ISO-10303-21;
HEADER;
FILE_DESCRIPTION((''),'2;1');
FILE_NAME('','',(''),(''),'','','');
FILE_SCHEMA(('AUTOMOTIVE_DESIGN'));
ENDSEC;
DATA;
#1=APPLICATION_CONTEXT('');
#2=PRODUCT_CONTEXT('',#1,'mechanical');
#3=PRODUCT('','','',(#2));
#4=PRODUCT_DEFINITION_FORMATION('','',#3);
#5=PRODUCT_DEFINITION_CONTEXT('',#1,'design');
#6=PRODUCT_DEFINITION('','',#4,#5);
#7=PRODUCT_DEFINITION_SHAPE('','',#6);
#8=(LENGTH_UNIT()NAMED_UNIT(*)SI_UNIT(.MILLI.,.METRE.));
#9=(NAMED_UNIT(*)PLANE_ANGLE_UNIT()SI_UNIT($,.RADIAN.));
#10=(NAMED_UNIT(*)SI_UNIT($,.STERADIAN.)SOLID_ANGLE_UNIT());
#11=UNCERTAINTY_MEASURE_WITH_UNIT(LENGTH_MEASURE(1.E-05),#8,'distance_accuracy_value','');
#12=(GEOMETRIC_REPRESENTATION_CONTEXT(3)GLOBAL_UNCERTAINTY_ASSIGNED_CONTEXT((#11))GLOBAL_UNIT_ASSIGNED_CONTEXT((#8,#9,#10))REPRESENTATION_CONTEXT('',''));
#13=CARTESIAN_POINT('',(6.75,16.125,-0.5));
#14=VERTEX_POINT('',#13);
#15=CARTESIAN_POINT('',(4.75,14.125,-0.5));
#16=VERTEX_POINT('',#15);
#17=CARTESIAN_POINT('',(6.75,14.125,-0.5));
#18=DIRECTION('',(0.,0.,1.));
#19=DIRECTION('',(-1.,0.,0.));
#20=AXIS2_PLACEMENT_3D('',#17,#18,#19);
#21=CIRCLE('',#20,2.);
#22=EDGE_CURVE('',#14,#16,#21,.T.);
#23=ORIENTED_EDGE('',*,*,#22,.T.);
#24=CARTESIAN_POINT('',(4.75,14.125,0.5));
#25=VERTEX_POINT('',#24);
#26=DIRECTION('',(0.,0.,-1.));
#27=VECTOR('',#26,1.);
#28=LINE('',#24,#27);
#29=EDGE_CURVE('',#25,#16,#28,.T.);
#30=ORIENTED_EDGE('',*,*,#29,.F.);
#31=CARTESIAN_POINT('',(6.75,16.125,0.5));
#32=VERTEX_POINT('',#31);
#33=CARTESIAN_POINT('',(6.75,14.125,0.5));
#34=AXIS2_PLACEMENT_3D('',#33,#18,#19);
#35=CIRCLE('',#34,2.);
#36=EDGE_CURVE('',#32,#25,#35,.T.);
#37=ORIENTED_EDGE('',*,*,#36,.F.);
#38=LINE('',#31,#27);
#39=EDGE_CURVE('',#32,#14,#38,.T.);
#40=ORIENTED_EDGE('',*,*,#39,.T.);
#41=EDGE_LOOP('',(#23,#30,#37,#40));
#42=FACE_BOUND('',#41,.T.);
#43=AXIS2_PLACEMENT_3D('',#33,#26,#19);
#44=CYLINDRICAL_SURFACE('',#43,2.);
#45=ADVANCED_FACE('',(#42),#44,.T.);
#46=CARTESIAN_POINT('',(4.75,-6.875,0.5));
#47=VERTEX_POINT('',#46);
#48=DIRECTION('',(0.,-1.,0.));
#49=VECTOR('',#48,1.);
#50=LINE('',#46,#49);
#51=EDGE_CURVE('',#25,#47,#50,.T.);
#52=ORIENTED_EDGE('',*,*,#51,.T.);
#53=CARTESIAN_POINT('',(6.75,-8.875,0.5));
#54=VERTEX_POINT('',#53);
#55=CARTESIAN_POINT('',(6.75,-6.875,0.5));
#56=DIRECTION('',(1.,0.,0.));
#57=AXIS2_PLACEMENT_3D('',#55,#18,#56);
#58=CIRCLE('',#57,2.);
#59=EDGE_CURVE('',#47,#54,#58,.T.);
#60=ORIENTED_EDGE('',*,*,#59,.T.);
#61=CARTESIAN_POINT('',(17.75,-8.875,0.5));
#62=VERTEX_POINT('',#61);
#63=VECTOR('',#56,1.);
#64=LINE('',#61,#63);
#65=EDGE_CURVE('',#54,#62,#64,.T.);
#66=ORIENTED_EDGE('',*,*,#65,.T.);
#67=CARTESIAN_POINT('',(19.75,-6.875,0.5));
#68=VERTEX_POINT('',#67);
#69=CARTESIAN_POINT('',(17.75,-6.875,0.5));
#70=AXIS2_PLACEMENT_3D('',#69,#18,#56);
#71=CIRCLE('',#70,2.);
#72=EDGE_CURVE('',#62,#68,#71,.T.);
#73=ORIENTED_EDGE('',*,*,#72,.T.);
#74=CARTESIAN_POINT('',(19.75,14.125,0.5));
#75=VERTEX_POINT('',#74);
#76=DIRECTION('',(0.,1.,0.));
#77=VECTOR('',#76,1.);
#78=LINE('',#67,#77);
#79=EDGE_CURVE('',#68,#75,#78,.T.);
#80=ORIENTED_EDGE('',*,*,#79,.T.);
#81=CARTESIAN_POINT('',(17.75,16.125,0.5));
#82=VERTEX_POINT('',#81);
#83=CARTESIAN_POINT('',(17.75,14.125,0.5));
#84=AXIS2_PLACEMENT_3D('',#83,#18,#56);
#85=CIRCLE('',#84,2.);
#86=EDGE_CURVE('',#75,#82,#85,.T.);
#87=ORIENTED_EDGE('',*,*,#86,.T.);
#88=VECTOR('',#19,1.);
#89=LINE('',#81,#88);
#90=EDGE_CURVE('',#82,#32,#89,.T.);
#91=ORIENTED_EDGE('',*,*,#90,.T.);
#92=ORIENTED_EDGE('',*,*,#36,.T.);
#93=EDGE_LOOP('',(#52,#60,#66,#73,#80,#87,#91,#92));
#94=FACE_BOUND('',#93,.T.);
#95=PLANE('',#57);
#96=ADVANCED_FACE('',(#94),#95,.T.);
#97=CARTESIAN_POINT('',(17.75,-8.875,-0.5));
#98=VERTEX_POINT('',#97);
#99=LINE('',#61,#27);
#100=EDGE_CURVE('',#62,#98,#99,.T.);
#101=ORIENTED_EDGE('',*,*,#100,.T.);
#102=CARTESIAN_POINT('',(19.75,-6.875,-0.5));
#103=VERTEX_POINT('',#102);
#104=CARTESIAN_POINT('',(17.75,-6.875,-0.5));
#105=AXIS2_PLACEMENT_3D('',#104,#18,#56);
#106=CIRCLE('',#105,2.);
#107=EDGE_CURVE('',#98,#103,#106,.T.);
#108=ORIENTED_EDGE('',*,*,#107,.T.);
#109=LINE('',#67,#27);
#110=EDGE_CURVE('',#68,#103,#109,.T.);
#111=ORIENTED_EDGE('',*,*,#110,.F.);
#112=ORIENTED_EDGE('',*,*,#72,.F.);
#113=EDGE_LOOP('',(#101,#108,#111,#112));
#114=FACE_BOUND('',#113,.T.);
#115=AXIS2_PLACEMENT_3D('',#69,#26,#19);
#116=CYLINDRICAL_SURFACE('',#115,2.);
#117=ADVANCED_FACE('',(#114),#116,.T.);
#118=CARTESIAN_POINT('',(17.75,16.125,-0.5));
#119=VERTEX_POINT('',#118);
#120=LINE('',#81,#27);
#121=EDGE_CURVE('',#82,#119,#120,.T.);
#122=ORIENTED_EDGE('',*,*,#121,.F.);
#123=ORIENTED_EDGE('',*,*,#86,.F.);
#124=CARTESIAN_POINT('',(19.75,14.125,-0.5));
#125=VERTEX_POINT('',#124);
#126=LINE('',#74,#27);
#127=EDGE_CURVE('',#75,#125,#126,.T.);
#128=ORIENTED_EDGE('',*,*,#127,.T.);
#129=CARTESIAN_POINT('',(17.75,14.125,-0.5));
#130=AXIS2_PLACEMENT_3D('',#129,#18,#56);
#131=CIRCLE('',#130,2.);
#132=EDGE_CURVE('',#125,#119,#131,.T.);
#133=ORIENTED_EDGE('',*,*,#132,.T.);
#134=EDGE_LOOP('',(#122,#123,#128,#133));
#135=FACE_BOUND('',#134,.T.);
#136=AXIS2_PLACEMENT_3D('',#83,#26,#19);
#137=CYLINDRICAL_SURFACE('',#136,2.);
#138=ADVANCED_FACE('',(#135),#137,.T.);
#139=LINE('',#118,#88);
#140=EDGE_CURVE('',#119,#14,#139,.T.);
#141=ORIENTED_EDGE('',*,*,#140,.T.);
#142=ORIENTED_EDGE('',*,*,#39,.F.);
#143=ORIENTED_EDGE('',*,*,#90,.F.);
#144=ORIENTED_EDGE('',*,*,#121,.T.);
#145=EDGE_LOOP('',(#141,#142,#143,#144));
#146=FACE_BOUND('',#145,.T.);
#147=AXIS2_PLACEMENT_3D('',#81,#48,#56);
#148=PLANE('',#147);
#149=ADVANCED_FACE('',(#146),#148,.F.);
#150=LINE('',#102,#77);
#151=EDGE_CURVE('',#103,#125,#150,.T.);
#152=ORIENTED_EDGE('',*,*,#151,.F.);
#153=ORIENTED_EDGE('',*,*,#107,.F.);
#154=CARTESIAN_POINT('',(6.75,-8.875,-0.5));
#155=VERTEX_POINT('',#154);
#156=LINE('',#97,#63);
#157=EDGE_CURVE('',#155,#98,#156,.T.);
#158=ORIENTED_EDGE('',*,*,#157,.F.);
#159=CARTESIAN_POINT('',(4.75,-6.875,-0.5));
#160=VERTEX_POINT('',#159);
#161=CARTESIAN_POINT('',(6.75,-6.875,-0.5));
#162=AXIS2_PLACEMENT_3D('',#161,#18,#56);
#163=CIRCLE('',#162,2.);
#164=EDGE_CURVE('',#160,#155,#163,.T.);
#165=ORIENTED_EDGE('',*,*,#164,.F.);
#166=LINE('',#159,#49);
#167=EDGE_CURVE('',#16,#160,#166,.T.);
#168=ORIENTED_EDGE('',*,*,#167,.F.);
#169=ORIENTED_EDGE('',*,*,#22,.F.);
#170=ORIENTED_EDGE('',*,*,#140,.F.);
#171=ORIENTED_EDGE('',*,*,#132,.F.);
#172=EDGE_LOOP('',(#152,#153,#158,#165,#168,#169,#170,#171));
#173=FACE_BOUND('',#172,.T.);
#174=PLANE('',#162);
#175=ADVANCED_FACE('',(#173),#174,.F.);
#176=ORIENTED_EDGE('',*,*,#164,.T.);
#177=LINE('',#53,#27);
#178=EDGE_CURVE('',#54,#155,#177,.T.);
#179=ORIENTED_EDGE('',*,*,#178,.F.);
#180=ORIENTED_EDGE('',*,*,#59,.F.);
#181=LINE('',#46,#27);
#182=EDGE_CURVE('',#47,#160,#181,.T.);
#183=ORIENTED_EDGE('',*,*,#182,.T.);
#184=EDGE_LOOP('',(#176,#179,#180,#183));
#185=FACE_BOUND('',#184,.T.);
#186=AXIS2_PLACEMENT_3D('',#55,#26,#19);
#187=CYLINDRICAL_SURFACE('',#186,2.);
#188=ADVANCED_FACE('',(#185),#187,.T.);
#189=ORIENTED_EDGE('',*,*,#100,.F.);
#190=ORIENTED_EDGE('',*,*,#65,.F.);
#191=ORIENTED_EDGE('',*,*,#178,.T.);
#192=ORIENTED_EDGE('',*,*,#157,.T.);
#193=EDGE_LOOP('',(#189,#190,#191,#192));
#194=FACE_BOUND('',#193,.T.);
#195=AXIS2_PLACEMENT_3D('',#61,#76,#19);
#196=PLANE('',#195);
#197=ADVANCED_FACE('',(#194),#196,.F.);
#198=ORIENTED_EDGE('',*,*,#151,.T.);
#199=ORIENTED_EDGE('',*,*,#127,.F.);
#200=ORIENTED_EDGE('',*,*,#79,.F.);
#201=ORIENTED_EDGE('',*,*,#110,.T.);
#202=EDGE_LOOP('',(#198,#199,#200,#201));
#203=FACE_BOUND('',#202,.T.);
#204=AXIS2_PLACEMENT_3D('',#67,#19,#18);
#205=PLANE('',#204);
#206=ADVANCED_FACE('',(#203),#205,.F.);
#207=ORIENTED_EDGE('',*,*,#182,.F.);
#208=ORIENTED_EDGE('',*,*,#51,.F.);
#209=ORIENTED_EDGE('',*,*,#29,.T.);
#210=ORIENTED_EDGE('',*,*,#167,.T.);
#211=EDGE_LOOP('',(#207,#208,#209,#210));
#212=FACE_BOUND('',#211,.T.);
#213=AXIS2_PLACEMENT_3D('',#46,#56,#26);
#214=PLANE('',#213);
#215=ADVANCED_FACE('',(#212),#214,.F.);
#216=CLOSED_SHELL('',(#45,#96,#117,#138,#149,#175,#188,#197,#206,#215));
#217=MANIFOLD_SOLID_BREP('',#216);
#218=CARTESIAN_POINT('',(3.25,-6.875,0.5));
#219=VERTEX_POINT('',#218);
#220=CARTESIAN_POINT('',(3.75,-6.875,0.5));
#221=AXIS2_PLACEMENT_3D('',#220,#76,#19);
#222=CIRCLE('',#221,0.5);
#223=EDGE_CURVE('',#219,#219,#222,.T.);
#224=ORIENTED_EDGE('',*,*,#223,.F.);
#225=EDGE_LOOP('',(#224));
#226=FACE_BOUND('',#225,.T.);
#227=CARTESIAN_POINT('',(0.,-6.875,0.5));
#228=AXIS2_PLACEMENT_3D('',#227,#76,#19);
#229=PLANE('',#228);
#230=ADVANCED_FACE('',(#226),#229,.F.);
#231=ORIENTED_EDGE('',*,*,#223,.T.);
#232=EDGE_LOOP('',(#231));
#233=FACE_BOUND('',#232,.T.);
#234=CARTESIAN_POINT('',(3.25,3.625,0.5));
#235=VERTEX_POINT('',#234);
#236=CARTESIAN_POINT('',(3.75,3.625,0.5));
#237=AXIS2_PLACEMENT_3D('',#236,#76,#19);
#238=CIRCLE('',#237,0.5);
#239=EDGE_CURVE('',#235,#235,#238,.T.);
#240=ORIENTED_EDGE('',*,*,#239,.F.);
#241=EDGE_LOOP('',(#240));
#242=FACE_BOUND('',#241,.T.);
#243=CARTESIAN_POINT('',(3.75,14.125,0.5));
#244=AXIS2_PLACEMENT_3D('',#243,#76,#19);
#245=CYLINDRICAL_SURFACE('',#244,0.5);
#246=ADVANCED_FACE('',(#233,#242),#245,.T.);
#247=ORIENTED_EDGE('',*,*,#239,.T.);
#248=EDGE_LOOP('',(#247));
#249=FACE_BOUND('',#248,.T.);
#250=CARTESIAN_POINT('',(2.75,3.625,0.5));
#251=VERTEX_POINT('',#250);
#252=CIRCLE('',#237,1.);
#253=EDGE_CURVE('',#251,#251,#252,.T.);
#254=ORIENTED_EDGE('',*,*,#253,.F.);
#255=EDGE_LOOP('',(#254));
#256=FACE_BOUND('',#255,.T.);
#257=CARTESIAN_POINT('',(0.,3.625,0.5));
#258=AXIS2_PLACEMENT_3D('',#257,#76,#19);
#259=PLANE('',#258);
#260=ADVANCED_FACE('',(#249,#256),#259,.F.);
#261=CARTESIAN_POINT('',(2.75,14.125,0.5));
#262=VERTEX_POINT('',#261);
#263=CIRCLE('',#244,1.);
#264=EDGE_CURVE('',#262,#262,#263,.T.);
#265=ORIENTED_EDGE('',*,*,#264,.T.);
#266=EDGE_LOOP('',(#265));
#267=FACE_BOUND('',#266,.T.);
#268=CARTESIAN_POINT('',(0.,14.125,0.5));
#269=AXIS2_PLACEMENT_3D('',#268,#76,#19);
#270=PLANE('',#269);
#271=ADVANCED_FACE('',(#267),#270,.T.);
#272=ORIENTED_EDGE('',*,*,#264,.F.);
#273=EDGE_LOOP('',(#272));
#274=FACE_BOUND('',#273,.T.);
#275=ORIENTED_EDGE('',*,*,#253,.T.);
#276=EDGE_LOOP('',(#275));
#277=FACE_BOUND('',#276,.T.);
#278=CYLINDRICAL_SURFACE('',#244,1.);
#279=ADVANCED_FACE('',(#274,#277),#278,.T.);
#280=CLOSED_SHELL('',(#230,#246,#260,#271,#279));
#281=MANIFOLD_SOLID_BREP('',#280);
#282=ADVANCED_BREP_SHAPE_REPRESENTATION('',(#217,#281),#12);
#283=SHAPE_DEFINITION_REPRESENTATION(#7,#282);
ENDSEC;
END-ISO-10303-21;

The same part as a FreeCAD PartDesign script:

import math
import FreeCAD as App
import Part
import Sketcher


def add_polygon(sketch, points):
    """Adds a closed chain of lines whose ends are joined by coincident constraints."""
    first, n = sketch.GeometryCount, len(points)
    for a, b in zip(points, points[1:] + points[:1]):
        sketch.addGeometry(Part.LineSegment(App.Vector(*a, 0), App.Vector(*b, 0)), False)
    for i in range(n):
        sketch.addConstraint(Sketcher.Constraint("Coincident", first + i, 2, first + (i + 1) % n, 1))

doc = App.newDocument("Part")
body = doc.addObject("PartDesign::Body", "Body")

# Sketch on XY plane
sketch1 = doc.addObject("Sketcher::SketchObject", "Sketch")
body.addObject(sketch1)
sketch1.AttachmentSupport = (doc.XY_Plane, [""])
sketch1.MapMode = "FlatFace"
sketch1.addGeometry(Part.LineSegment(App.Vector(6.8, -8.9, 0), App.Vector(17.8, -8.9, 0)), False)
sketch1.addGeometry(Part.ArcOfCircle(Part.Circle(App.Vector(17.7, -6.9, 0), App.Vector(0, 0, 1), 2), math.radians(-90), math.radians(0)), False)
sketch1.addGeometry(Part.LineSegment(App.Vector(19.8, -6.9, 0), App.Vector(19.8, 14.1, 0)), False)
sketch1.addGeometry(Part.ArcOfCircle(Part.Circle(App.Vector(17.7, 14.1, 0), App.Vector(0, 0, 1), 2), math.radians(0), math.radians(90)), False)
sketch1.addGeometry(Part.LineSegment(App.Vector(17.8, 16.1, 0), App.Vector(6.8, 16.1, 0)), False)
sketch1.addGeometry(Part.ArcOfCircle(Part.Circle(App.Vector(6.8, 14.1, 0), App.Vector(0, 0, 1), 2), math.radians(90), math.radians(180)), False)
sketch1.addGeometry(Part.LineSegment(App.Vector(4.8, 14.1, 0), App.Vector(4.8, -6.9, 0)), False)
sketch1.addGeometry(Part.ArcOfCircle(Part.Circle(App.Vector(6.8, -6.9, 0), App.Vector(0, 0, 1), 2), math.radians(-180), math.radians(-90)), False)
sketch1.addConstraint(Sketcher.Constraint("Tangent", 0, 2, 1, 1))
sketch1.addConstraint(Sketcher.Constraint("Tangent", 1, 2, 2, 1))
sketch1.addConstraint(Sketcher.Constraint("Tangent", 2, 2, 3, 1))
sketch1.addConstraint(Sketcher.Constraint("Tangent", 3, 2, 4, 1))
sketch1.addConstraint(Sketcher.Constraint("Tangent", 4, 2, 5, 1))
sketch1.addConstraint(Sketcher.Constraint("Tangent", 5, 2, 6, 1))
sketch1.addConstraint(Sketcher.Constraint("Tangent", 6, 2, 7, 1))
sketch1.addConstraint(Sketcher.Constraint("Tangent", 7, 2, 0, 1))
sketch1.addConstraint(Sketcher.Constraint("Horizontal", 0))
sketch1.addConstraint(Sketcher.Constraint("Vertical", 2))
sketch1.addConstraint(Sketcher.Constraint("Horizontal", 4))
sketch1.addConstraint(Sketcher.Constraint("Vertical", 6))
sketch1.addConstraint(Sketcher.Constraint("Equal", 1, 3))
sketch1.addConstraint(Sketcher.Constraint("Equal", 3, 5))
sketch1.addConstraint(Sketcher.Constraint("Equal", 5, 7))
sketch1.addConstraint(Sketcher.Constraint("Radius", 1, 2.0))
sketch1.addConstraint(Sketcher.Constraint("DistanceX", 0, 1, 0, 2, 11.0))
sketch1.addConstraint(Sketcher.Constraint("DistanceY", 2, 1, 2, 2, 21.0))
sketch1.addConstraint(Sketcher.Constraint("DistanceX", -1, 1, 1, 3, 17.75))
sketch1.addConstraint(Sketcher.Constraint("DistanceY", 1, 3, -1, 1, 6.875))
pad1 = doc.addObject("PartDesign::Pad", "Pad")
body.addObject(pad1)
pad1.Profile = sketch1
pad1.Length = 1
pad1.Midplane = True
body2 = doc.addObject("PartDesign::Body", "Body001")

# Sketch on XY plane
sketch2 = doc.addObject("Sketcher::SketchObject", "Sketch001")
body2.addObject(sketch2)
sketch2.AttachmentSupport = (doc.getObject("XY_Plane001"), [""])
sketch2.MapMode = "FlatFace"
sketch2.AttachmentOffset = App.Placement(App.Vector(0, 0, 0.5), App.Rotation())
add_polygon(sketch2, [(4.8, 14.1), (3.8, 14.1), (3.8, -6.9), (4.2, -6.9), (4.2, 3.6), (4.8, 3.6)])  # lines 0-5
sketch2.addGeometry(Part.LineSegment(App.Vector(3.8, 14.1, 0), App.Vector(3.8, -6.9, 0)), True)  # axis
sketch2.addConstraint(Sketcher.Constraint("Horizontal", 0))
sketch2.addConstraint(Sketcher.Constraint("Vertical", 1))
sketch2.addConstraint(Sketcher.Constraint("Horizontal", 2))
sketch2.addConstraint(Sketcher.Constraint("Vertical", 3))
sketch2.addConstraint(Sketcher.Constraint("Horizontal", 4))
sketch2.addConstraint(Sketcher.Constraint("Vertical", 5))
sketch2.addConstraint(Sketcher.Constraint("Vertical", 6))
sketch2.addConstraint(Sketcher.Constraint("Coincident", 6, 1, 0, 2))
sketch2.addConstraint(Sketcher.Constraint("Horizontal", 2, 2, 6, 2))
sketch2.addConstraint(Sketcher.Constraint("Equal", 2, 4))
sketch2.addConstraint(Sketcher.Constraint("Equal", 3, 5))
sketch2.addConstraint(Sketcher.Constraint("DistanceX", 0, 2, 0, 1, 1.0))
sketch2.addConstraint(Sketcher.Constraint("DistanceY", 1, 2, 1, 1, 21.0))
sketch2.addConstraint(Sketcher.Constraint("DistanceX", -1, 1, 0, 2, 3.75))
sketch2.addConstraint(Sketcher.Constraint("DistanceY", -1, 1, 0, 2, 14.125))
revolution = doc.addObject("PartDesign::Revolution", "Revolution")
body2.addObject(revolution)
revolution.Profile = sketch2
revolution.ReferenceAxis = (sketch2, ["Axis0"])
revolution.Angle = 360

doc.recompute()
